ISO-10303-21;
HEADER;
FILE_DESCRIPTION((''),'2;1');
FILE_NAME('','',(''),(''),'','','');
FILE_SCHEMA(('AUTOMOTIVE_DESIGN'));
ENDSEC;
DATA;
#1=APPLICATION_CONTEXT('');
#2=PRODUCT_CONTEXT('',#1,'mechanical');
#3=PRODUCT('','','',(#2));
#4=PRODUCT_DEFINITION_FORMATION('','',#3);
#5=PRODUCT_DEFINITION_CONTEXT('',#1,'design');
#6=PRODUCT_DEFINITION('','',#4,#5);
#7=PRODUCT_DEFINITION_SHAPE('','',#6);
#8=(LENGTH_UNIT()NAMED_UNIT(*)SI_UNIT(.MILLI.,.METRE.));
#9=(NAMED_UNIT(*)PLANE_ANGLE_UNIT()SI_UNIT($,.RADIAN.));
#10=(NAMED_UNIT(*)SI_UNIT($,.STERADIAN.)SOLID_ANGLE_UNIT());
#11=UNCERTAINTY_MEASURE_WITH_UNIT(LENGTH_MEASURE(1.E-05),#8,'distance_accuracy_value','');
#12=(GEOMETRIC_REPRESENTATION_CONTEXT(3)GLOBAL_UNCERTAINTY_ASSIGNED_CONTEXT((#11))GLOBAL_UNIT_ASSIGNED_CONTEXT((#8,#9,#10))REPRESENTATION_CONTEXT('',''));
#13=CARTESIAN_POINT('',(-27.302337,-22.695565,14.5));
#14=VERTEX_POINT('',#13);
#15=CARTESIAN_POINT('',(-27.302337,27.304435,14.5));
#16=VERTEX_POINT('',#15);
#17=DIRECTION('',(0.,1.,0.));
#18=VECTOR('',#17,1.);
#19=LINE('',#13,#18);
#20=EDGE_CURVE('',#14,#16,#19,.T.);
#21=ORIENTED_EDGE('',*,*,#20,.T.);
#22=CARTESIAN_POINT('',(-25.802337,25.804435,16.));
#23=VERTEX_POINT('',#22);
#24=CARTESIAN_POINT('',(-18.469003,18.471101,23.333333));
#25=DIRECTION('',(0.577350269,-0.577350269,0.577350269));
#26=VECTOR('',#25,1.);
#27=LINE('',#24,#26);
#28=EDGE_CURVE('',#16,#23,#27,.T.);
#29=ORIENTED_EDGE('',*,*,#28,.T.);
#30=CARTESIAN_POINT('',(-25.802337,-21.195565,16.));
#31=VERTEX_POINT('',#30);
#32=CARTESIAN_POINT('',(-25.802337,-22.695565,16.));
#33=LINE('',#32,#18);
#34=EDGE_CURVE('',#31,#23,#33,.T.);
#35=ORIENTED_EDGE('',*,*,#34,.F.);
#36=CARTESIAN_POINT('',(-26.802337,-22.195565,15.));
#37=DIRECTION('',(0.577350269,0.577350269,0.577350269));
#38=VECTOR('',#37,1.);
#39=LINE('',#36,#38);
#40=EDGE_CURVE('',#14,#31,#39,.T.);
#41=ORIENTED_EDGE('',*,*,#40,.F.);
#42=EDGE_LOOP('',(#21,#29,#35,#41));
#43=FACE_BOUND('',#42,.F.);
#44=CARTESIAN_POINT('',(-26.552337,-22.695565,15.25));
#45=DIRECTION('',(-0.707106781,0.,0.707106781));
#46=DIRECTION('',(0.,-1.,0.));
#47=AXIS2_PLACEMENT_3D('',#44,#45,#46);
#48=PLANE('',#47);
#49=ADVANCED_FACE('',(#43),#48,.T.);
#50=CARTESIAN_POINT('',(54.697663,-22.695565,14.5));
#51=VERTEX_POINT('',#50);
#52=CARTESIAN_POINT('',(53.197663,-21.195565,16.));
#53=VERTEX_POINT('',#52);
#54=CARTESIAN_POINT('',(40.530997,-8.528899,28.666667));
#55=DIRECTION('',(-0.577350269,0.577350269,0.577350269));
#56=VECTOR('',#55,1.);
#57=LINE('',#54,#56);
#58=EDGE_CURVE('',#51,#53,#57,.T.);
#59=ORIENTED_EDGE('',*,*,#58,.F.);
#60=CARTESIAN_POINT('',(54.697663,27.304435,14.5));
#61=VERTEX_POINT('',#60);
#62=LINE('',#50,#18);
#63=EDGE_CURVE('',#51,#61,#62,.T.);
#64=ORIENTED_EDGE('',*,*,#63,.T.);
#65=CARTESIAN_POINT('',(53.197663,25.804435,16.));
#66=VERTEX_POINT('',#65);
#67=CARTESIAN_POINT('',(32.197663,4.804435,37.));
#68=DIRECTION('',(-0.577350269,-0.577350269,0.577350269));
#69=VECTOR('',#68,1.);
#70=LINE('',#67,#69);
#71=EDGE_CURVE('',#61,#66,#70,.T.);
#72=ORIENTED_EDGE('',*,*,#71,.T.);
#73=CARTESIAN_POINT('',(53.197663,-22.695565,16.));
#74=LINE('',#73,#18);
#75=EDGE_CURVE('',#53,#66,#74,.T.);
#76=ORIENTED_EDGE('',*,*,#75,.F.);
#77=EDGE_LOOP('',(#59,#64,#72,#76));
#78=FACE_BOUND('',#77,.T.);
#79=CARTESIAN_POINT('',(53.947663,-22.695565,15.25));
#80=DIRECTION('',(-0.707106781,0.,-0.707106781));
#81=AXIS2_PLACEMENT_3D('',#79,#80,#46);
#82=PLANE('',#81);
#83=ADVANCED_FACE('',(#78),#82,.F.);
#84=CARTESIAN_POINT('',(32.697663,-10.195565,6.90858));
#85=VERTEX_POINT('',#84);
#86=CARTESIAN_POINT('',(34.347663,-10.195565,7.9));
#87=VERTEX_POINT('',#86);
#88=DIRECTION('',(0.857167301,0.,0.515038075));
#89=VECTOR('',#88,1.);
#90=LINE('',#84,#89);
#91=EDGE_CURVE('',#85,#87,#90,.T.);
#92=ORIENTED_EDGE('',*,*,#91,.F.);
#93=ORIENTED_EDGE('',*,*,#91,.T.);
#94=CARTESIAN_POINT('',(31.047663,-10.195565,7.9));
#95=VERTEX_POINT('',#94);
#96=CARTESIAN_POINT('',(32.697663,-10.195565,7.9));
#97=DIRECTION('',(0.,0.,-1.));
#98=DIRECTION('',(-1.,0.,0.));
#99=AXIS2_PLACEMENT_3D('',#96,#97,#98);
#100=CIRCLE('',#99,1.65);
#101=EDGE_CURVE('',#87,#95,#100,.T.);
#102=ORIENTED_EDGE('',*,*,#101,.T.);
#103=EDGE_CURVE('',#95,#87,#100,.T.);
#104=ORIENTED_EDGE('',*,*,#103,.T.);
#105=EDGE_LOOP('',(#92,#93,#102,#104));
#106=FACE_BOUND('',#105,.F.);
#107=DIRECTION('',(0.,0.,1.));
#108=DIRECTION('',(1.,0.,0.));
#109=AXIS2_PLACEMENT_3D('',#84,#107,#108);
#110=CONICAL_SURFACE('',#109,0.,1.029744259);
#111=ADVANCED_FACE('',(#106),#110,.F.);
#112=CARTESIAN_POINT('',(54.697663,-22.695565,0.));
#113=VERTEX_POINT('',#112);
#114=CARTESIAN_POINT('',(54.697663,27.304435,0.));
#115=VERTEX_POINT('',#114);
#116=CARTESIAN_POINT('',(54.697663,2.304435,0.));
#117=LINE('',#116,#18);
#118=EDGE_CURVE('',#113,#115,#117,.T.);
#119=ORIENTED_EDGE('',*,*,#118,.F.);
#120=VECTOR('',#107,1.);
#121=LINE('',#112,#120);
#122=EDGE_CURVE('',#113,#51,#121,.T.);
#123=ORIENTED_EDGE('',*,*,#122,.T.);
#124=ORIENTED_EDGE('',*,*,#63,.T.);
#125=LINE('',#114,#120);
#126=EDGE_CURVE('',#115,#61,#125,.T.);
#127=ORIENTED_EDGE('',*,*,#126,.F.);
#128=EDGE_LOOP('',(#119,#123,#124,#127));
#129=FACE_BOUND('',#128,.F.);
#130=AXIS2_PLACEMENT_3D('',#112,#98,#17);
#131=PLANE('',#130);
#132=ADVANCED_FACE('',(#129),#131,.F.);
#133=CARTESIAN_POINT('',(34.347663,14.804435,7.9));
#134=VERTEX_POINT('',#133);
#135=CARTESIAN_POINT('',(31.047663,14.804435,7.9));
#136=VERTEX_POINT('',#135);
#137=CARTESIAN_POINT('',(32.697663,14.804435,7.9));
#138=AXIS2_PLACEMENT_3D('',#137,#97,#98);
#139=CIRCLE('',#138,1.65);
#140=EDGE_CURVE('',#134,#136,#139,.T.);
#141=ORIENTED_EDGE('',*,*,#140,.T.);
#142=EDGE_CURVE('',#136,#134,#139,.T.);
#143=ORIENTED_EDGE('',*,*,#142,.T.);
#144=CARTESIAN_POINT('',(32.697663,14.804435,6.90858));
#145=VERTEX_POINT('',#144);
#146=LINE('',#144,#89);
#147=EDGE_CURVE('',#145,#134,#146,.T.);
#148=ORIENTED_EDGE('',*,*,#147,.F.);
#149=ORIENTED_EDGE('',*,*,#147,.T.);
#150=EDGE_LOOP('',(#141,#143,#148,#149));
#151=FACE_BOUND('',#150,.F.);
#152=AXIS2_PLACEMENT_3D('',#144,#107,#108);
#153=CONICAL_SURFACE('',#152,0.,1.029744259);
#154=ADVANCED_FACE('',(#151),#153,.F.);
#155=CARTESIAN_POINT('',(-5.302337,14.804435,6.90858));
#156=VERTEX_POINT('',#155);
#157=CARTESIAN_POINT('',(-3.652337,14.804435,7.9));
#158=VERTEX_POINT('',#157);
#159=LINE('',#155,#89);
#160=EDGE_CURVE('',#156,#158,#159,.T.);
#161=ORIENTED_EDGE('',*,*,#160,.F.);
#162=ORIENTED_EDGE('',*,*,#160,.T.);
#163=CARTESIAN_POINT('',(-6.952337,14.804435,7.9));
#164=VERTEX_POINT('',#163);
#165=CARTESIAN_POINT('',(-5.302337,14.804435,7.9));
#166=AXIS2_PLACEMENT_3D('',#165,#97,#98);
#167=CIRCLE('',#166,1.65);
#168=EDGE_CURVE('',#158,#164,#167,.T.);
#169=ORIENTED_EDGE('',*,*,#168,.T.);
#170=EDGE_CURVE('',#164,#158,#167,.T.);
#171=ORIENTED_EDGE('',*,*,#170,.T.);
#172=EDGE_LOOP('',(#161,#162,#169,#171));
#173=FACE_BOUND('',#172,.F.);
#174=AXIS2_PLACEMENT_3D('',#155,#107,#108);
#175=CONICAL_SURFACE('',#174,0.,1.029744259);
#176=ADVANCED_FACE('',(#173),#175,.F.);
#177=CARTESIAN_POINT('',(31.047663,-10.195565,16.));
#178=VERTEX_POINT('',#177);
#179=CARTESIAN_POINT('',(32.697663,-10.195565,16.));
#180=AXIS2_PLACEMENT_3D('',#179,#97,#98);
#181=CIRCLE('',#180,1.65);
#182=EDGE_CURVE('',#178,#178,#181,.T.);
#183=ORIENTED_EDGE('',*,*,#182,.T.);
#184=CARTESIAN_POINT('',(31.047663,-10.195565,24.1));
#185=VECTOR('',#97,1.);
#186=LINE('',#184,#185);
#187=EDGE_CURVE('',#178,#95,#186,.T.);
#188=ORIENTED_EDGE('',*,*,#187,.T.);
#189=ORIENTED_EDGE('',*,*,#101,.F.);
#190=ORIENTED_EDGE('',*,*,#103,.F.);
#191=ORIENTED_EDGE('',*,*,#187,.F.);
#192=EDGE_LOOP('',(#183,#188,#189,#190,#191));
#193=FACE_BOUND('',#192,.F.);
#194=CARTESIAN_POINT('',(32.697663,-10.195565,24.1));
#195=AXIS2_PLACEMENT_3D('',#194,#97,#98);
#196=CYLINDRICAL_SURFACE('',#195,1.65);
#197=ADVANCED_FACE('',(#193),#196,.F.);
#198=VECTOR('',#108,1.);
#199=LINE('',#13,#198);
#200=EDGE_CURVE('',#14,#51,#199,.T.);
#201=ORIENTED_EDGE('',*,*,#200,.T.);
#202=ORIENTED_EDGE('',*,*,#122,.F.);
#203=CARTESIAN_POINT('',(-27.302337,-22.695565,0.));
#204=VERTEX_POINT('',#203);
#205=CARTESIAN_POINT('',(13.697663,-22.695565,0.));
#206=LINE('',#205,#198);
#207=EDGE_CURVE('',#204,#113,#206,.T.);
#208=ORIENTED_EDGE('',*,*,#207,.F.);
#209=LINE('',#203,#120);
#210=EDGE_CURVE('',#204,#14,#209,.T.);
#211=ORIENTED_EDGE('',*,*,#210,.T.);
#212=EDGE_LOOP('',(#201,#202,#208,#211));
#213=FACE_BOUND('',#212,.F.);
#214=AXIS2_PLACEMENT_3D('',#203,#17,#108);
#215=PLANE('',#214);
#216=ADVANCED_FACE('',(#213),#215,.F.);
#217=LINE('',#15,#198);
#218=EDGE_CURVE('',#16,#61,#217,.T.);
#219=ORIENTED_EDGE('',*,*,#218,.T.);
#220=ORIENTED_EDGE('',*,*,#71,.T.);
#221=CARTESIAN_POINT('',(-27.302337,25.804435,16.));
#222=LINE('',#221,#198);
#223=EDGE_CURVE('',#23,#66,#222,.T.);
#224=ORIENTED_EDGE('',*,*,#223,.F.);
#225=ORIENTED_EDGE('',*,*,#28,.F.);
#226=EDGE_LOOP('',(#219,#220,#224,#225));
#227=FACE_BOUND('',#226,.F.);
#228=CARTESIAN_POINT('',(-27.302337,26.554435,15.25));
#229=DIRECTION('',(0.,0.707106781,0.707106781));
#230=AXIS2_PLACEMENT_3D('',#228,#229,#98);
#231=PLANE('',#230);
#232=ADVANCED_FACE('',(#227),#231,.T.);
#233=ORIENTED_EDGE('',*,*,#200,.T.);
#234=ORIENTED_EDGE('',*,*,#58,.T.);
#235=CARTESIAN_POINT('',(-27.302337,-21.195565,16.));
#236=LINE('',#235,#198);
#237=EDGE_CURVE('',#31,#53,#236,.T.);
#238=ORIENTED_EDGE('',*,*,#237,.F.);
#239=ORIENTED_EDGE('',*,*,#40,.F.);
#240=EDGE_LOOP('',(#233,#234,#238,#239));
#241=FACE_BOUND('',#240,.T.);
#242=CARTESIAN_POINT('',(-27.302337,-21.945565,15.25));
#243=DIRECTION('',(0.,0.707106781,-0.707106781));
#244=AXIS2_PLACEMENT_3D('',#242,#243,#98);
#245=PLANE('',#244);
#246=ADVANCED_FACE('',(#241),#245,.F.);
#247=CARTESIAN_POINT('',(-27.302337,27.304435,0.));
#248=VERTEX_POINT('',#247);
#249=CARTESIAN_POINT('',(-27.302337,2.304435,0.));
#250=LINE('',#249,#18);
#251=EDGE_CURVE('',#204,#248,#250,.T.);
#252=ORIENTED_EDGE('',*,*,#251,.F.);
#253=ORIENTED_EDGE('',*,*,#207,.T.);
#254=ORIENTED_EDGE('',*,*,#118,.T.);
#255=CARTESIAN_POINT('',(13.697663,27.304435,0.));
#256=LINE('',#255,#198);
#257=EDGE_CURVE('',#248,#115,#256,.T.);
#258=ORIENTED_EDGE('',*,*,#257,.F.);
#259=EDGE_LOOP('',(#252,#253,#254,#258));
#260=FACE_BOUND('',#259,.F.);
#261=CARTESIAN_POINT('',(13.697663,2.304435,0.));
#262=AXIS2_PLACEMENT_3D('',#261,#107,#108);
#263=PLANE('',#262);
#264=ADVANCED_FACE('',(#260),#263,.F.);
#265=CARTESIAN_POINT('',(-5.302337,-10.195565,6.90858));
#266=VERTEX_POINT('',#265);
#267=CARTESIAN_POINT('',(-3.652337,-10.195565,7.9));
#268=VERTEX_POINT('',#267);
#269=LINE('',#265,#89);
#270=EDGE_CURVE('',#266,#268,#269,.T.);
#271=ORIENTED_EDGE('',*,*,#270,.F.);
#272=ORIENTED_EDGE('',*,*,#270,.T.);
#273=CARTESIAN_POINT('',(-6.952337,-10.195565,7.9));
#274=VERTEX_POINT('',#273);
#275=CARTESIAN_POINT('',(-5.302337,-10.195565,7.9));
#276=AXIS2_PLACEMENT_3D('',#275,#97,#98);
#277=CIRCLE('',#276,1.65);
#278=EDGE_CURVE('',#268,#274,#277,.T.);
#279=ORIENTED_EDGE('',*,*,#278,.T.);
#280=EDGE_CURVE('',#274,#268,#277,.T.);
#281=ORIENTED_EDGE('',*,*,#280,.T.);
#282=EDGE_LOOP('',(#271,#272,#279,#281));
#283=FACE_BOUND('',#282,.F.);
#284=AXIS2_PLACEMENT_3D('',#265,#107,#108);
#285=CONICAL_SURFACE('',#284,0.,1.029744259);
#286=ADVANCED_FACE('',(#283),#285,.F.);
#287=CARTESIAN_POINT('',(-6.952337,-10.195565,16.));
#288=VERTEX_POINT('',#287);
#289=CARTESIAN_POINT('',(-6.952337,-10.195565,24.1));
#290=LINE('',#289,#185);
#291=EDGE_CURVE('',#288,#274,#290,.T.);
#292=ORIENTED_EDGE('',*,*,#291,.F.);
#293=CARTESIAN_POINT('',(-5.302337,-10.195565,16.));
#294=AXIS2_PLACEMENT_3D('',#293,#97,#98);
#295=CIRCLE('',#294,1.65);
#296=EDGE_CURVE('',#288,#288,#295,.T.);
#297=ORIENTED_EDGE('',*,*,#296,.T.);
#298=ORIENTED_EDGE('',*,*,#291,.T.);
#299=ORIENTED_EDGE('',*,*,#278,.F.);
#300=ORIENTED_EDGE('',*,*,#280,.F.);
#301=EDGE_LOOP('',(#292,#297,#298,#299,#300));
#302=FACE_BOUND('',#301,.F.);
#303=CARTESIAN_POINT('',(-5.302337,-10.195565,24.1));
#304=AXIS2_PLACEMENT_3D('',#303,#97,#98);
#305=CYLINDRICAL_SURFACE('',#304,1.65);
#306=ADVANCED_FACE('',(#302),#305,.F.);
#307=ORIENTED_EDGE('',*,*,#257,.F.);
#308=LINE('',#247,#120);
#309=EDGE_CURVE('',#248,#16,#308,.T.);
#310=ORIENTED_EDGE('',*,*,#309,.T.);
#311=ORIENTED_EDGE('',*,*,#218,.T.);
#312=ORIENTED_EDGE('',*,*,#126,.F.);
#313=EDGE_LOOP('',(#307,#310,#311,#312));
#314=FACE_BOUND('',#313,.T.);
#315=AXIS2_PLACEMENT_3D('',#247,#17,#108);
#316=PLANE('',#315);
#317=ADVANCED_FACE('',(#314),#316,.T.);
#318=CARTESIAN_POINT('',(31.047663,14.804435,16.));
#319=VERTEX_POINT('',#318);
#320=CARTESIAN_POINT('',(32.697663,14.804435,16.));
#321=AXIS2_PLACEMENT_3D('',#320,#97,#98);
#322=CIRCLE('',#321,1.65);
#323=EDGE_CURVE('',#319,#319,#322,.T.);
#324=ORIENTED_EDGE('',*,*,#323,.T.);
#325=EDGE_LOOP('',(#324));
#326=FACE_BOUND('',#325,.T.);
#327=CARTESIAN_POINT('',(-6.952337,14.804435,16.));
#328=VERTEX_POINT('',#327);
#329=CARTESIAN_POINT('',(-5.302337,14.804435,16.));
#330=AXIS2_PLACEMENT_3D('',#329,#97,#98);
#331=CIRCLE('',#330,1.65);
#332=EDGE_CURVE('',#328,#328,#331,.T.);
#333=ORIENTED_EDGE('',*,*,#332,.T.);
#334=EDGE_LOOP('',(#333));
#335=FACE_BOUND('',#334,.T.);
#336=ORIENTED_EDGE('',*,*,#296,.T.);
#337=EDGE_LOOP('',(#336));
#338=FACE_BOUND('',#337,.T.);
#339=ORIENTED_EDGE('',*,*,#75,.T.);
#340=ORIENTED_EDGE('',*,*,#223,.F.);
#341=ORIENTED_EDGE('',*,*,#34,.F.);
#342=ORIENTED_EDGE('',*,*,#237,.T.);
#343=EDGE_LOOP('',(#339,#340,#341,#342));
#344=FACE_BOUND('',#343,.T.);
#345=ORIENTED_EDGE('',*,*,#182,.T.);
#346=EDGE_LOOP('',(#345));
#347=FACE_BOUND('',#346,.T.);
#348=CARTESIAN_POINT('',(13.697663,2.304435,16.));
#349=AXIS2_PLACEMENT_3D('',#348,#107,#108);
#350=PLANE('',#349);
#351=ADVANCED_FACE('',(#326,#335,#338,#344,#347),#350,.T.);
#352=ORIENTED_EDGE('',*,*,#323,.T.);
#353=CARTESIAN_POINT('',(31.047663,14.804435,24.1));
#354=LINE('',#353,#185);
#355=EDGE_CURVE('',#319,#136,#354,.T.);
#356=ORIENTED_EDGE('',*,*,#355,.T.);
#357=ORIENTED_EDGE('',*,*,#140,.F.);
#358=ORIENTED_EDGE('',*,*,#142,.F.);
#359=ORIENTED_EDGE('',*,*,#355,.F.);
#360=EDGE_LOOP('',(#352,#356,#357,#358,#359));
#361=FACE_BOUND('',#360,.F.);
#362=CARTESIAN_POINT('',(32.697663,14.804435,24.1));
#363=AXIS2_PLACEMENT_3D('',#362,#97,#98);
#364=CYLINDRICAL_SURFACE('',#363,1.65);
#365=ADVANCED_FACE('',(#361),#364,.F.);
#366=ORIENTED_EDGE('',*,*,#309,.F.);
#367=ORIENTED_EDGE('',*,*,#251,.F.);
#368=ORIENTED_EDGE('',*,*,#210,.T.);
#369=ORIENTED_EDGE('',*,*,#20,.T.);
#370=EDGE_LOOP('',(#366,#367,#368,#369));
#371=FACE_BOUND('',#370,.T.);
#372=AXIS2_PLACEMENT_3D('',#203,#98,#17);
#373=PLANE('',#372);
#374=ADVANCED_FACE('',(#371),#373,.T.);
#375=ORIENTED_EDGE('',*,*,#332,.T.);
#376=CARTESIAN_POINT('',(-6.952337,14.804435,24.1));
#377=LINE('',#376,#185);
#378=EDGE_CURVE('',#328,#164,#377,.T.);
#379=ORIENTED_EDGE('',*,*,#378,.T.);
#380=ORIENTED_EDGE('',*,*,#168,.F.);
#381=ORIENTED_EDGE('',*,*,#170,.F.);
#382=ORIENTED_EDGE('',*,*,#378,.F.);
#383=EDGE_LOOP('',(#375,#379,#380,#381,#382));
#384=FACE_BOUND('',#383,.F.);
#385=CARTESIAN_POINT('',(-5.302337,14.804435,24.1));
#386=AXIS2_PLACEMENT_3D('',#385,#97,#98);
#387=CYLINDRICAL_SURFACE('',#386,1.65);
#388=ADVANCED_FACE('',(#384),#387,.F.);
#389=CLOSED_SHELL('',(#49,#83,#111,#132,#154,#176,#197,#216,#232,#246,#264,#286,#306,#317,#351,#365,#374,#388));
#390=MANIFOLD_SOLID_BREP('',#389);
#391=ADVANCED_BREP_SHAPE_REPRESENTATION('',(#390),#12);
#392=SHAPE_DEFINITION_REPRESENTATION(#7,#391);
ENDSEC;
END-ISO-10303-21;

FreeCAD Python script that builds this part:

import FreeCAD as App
import Part
import Sketcher


def edges_at(feature, points):
    """Names of the edges that pass closest to the given points."""
    edges = feature.Shape.Edges
    near = lambda p: min(range(len(edges)), key=lambda i: edges[i].distToShape(Part.Vertex(*p))[0])
    return sorted({f"Edge{near(p) + 1}" for p in points})


def add_polygon(sketch, points):
    """Adds a closed chain of lines whose ends are joined by coincident constraints."""
    first, n = sketch.GeometryCount, len(points)
    for a, b in zip(points, points[1:] + points[:1]):
        sketch.addGeometry(Part.LineSegment(App.Vector(*a, 0), App.Vector(*b, 0)), False)
    for i in range(n):
        sketch.addConstraint(Sketcher.Constraint("Coincident", first + i, 2, first + (i + 1) % n, 1))

doc = App.newDocument("Part")
body = doc.addObject("PartDesign::Body", "Body")

sketch1 = doc.addObject("Sketcher::SketchObject", "Sketch")
body.addObject(sketch1)
sketch1.AttachmentSupport = (doc.XY_Plane, [""])
sketch1.MapMode = "FlatFace"
add_polygon(sketch1, [(-27, 27), (-27, -23), (55, -23), (55, 27)])
sketch1.addConstraint([
    Sketcher.Constraint("Vertical", 0),
    Sketcher.Constraint("Horizontal", 1),
    Sketcher.Constraint("Vertical", 2),
    Sketcher.Constraint("Horizontal", 3),
    Sketcher.Constraint("DistanceX", 1, 1, 1, 2, 82.0),
    Sketcher.Constraint("DistanceY", 0, 2, 0, 1, 50.0),
    Sketcher.Constraint("DistanceX", 0, 2, -1, 1, 27.302337),
    Sketcher.Constraint("DistanceY", 0, 2, -1, 1, 22.695565),
])
pad1 = doc.addObject("PartDesign::Pad", "Pad")
body.addObject(pad1)
pad1.Profile = sketch1
pad1.Length = 16
doc.recompute()

chamfer = doc.addObject("PartDesign::Chamfer", "Chamfer")
body.addObject(chamfer)
chamfer.Base = (pad1, edges_at(pad1, [
    (13.698, -22.696, 16),
    (54.698, 2.304, 16),
    (13.698, 27.304, 16),
    (-27.302, 2.304, 16),
]))
chamfer.Size = 1.5

sketch2 = doc.addObject("Sketcher::SketchObject", "Sketch001")
body.addObject(sketch2)
sketch2.AttachmentSupport = (doc.XY_Plane, [""])
sketch2.MapMode = "FlatFace"
sketch2.AttachmentOffset = App.Placement(App.Vector(0, 0, 16), App.Rotation())
sketch2.addGeometry([
    Part.Circle(App.Vector(-5.3, 14.8, 0), App.Vector(0, 0, 1), 1.6),
    Part.Circle(App.Vector(-5.3, -10.2, 0), App.Vector(0, 0, 1), 1.6),
    Part.Circle(App.Vector(32.7, 14.8, 0), App.Vector(0, 0, 1), 1.6),
    Part.Circle(App.Vector(32.7, -10.2, 0), App.Vector(0, 0, 1), 1.6),
], False)
sketch2.addConstraint([
    Sketcher.Constraint("Equal", 0, 1),
    Sketcher.Constraint("Equal", 1, 2),
    Sketcher.Constraint("Equal", 2, 3),
    Sketcher.Constraint("Horizontal", 0, 3, 2, 3),
    Sketcher.Constraint("Horizontal", 1, 3, 3, 3),
    Sketcher.Constraint("Vertical", 0, 3, 1, 3),
    Sketcher.Constraint("Vertical", 2, 3, 3, 3),
    Sketcher.Constraint("Diameter", 0, 3.3),
    Sketcher.Constraint("DistanceY", 1, 3, 0, 3, 25.0),
    Sketcher.Constraint("DistanceX", 0, 3, 2, 3, 38.0),
    Sketcher.Constraint("DistanceX", 0, 3, -1, 1, 5.302337),
    Sketcher.Constraint("DistanceY", -1, 1, 0, 3, 14.804435),
])
doc.recompute()
hole = doc.addObject("PartDesign::Hole", "Hole")
body.addObject(hole)
hole.Profile = sketch2
hole.ThreadType = "None"
hole.Diameter = 3.3
hole.DepthType = "Dimension"
hole.Depth = 8.1
hole.DrillPoint = "Angled"
hole.DrillPointAngle = 118

doc.recompute()
